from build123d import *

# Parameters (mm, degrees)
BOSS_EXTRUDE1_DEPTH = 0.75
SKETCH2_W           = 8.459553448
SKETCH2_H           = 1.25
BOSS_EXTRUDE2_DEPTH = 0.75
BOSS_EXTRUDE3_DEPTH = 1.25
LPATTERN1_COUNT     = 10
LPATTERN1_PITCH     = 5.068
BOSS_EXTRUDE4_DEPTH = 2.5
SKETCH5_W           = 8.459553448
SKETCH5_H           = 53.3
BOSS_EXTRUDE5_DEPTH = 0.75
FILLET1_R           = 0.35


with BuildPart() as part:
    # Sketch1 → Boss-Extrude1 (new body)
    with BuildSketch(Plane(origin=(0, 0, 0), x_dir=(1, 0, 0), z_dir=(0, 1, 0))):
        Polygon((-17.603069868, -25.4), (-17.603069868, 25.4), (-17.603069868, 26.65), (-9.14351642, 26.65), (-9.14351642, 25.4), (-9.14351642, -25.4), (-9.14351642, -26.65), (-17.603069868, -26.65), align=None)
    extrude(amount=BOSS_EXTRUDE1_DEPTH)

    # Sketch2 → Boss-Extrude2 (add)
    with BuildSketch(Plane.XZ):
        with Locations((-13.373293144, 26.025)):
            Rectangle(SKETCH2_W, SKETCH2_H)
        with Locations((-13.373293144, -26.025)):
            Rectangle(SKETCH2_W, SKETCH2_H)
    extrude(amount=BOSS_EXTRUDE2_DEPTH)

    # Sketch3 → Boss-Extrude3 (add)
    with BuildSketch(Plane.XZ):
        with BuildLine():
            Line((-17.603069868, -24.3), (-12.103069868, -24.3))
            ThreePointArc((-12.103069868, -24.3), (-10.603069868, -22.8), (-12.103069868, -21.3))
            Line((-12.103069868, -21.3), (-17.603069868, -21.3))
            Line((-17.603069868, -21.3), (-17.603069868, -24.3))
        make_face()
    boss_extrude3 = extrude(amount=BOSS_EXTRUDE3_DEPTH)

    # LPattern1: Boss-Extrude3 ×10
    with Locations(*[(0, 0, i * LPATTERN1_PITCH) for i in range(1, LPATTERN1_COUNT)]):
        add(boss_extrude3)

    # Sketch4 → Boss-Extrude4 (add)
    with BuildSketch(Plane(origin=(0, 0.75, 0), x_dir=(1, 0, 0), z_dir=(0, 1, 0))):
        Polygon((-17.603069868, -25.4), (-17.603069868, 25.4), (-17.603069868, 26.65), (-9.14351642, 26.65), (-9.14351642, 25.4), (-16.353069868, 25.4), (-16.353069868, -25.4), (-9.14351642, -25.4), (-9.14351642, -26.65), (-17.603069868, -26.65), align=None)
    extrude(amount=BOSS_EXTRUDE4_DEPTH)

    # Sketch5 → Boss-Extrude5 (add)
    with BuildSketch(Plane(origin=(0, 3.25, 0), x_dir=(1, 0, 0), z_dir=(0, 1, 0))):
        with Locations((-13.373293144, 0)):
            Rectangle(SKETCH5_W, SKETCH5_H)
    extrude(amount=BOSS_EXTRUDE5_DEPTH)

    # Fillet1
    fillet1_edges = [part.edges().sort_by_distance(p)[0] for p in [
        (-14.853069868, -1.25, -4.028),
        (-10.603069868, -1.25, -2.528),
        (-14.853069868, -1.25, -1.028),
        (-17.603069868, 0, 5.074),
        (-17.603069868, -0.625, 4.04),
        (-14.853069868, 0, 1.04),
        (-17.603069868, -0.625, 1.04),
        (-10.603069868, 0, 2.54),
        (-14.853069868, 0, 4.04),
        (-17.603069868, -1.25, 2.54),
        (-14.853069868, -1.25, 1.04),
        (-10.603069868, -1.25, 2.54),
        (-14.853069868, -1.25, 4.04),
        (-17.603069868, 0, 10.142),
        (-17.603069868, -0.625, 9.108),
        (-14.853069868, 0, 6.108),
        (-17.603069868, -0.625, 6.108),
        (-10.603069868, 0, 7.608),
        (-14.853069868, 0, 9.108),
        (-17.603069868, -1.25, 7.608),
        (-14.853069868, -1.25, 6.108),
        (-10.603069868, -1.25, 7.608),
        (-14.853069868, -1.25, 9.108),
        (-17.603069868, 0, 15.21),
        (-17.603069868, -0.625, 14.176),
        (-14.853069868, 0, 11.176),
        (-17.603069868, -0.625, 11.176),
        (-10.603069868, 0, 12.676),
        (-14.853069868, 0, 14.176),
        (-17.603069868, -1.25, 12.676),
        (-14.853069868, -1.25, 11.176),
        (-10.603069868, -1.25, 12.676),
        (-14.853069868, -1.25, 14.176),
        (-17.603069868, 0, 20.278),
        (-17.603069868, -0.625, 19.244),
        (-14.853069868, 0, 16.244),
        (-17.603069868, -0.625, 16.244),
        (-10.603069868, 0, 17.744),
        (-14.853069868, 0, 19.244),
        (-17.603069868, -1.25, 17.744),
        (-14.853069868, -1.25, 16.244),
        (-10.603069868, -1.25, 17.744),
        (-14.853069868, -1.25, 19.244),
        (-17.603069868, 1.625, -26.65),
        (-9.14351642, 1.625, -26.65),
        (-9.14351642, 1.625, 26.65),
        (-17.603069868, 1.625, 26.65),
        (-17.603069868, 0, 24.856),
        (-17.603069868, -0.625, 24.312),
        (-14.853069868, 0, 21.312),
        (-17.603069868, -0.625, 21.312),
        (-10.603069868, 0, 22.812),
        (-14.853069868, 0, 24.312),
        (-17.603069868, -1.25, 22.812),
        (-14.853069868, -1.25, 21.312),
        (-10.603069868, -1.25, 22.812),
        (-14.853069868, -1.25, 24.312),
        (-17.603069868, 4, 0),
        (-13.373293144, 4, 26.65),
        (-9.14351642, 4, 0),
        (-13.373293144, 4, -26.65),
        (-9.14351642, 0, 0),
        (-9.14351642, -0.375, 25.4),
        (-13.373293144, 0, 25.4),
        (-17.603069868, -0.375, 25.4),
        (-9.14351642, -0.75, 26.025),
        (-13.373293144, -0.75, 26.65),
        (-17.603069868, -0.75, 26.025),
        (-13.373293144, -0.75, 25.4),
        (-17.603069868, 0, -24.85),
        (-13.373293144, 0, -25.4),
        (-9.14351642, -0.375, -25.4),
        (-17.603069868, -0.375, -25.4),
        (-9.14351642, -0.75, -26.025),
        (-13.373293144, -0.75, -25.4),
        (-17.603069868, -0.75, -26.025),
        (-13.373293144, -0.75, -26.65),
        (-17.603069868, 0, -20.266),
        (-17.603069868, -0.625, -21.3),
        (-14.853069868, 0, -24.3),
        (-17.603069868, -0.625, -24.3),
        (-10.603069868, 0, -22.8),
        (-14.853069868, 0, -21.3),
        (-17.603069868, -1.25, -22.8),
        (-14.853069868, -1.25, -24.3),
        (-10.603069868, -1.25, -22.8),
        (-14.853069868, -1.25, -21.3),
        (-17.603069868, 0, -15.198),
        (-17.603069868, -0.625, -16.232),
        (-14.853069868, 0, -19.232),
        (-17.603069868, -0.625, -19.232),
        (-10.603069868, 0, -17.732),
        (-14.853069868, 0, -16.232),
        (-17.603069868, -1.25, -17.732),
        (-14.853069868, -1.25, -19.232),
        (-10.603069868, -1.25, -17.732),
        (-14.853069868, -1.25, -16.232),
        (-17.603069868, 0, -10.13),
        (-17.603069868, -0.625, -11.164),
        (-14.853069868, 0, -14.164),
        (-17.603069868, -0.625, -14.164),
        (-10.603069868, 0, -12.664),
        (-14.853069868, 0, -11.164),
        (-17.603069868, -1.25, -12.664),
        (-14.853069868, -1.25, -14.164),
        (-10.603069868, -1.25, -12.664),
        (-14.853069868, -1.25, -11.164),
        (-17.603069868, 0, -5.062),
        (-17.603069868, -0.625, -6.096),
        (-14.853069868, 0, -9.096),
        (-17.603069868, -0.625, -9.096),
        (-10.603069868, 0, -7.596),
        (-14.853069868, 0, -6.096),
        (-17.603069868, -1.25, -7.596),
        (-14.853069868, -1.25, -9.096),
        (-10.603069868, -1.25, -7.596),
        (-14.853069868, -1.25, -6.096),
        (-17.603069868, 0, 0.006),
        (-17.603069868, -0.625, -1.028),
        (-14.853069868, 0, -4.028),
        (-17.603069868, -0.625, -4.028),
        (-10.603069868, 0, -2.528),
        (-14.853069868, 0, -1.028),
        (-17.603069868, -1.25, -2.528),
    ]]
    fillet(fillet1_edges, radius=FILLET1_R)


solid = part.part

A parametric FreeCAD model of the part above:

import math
import FreeCAD as App
import Part
import Sketcher

V = App.Vector


def edges_at(feature, points):
    """Names of the edges that pass closest to the given points."""
    edges = feature.Shape.Edges
    near = lambda p: min(range(len(edges)), key=lambda i: edges[i].distToShape(Part.Vertex(*p))[0])
    return sorted({f"Edge{near(p) + 1}" for p in points})

doc = App.newDocument("Part")
body = doc.addObject("PartDesign::Body", "Body")

# Sketch on XZ plane
sketch1 = body.newObject("Sketcher::SketchObject", "Sketch")
sketch1.AttachmentSupport = (doc.getObject("XZ_Plane"), [""])
sketch1.MapMode = "FlatFace"
sketch1.addGeometry(Part.LineSegment(V(-17.60307, -26.65, 0), V(-17.60307, 26.65, 0)), False)
sketch1.addGeometry(Part.LineSegment(V(-17.60307, 26.65, 0), V(-9.143516, 26.65, 0)), False)
sketch1.addGeometry(Part.LineSegment(V(-9.143516, 26.65, 0), V(-9.143516, -26.65, 0)), False)
sketch1.addGeometry(Part.LineSegment(V(-9.143516, -26.65, 0), V(-17.60307, -26.65, 0)), False)
sketch1.addConstraint(Sketcher.Constraint("Coincident", 0, 2, 1, 1))
sketch1.addConstraint(Sketcher.Constraint("Coincident", 1, 2, 2, 1))
sketch1.addConstraint(Sketcher.Constraint("Coincident", 2, 2, 3, 1))
sketch1.addConstraint(Sketcher.Constraint("Coincident", 3, 2, 0, 1))
sketch1.addConstraint(Sketcher.Constraint("Vertical", 0))
sketch1.addConstraint(Sketcher.Constraint("Horizontal", 1))
sketch1.addConstraint(Sketcher.Constraint("Vertical", 2))
sketch1.addConstraint(Sketcher.Constraint("Horizontal", 3))
sketch1.addConstraint(Sketcher.Constraint("DistanceY", 0, 1, 0, 2, 53.3))
sketch1.addConstraint(Sketcher.Constraint("DistanceY", -1, 1, 0, 2, 26.65))
sketch1.addConstraint(Sketcher.Constraint("DistanceX", 1, 1, 1, 2, 8.459553))
sketch1.addConstraint(Sketcher.Constraint("DistanceX", 0, 2, -1, 1, 17.60307))
pad1 = body.newObject("PartDesign::Pad", "Pad")
pad1.Profile = sketch1
pad1.Length = 0.75
pad1.Reversed = True

# Sketch on XZ plane
sketch2 = body.newObject("Sketcher::SketchObject", "Sketch001")
sketch2.AttachmentSupport = (doc.getObject("XZ_Plane"), [""])
sketch2.MapMode = "FlatFace"
sketch2.addGeometry(Part.LineSegment(V(-17.60307, 26.65, 0), V(-17.60307, 25.4, 0)), False)
sketch2.addGeometry(Part.LineSegment(V(-17.60307, 25.4, 0), V(-9.143516, 25.4, 0)), False)
sketch2.addGeometry(Part.LineSegment(V(-9.143516, 25.4, 0), V(-9.143516, 26.65, 0)), False)
sketch2.addGeometry(Part.LineSegment(V(-9.143516, 26.65, 0), V(-17.60307, 26.65, 0)), False)
sketch2.addGeometry(Part.LineSegment(V(-17.60307, -25.4, 0), V(-17.60307, -26.65, 0)), False)
sketch2.addGeometry(Part.LineSegment(V(-17.60307, -26.65, 0), V(-9.143516, -26.65, 0)), False)
sketch2.addGeometry(Part.LineSegment(V(-9.143516, -26.65, 0), V(-9.143516, -25.4, 0)), False)
sketch2.addGeometry(Part.LineSegment(V(-9.143516, -25.4, 0), V(-17.60307, -25.4, 0)), False)
sketch2.addConstraint(Sketcher.Constraint("Coincident", 0, 2, 1, 1))
sketch2.addConstraint(Sketcher.Constraint("Coincident", 1, 2, 2, 1))
sketch2.addConstraint(Sketcher.Constraint("Coincident", 2, 2, 3, 1))
sketch2.addConstraint(Sketcher.Constraint("Coincident", 3, 2, 0, 1))
sketch2.addConstraint(Sketcher.Constraint("Coincident", 4, 2, 5, 1))
sketch2.addConstraint(Sketcher.Constraint("Coincident", 5, 2, 6, 1))
sketch2.addConstraint(Sketcher.Constraint("Coincident", 6, 2, 7, 1))
sketch2.addConstraint(Sketcher.Constraint("Coincident", 7, 2, 4, 1))
sketch2.addConstraint(Sketcher.Constraint("Vertical", 0))
sketch2.addConstraint(Sketcher.Constraint("Horizontal", 1))
sketch2.addConstraint(Sketcher.Constraint("Vertical", 2))
sketch2.addConstraint(Sketcher.Constraint("Horizontal", 3))
sketch2.addConstraint(Sketcher.Constraint("Vertical", 4))
sketch2.addConstraint(Sketcher.Constraint("Horizontal", 5))
sketch2.addConstraint(Sketcher.Constraint("Vertical", 6))
sketch2.addConstraint(Sketcher.Constraint("Horizontal", 7))
sketch2.addConstraint(Sketcher.Constraint("Symmetric", 3, 2, 4, 2, -1))
sketch2.addConstraint(Sketcher.Constraint("Symmetric", 1, 2, 6, 2, -1))
sketch2.addConstraint(Sketcher.Constraint("DistanceY", 0, 2, 0, 1, 1.25))
sketch2.addConstraint(Sketcher.Constraint("DistanceY", -1, 1, 0, 2, 25.4))
sketch2.addConstraint(Sketcher.Constraint("DistanceX", 1, 1, 1, 2, 8.459553))
sketch2.addConstraint(Sketcher.Constraint("DistanceX", 0, 2, -1, 1, 17.60307))
pad2 = body.newObject("PartDesign::Pad", "Pad001")
pad2.Profile = sketch2
pad2.Length = 0.75

# Sketch on XZ plane
sketch3 = body.newObject("Sketcher::SketchObject", "Sketch002")
sketch3.AttachmentSupport = (doc.getObject("XZ_Plane"), [""])
sketch3.MapMode = "FlatFace"
sketch3.addGeometry(Part.LineSegment(V(-17.60307, -24.3, 0), V(-12.10307, -24.3, 0)), False)
sketch3.addGeometry(Part.ArcOfCircle(Part.Circle(V(-12.10307, -22.8, 0), V(0, 0, 1), 1.5), math.radians(-90), math.radians(90)), False)
sketch3.addGeometry(Part.LineSegment(V(-12.10307, -21.3, 0), V(-17.60307, -21.3, 0)), False)
sketch3.addGeometry(Part.LineSegment(V(-17.60307, -21.3, 0), V(-17.60307, -24.3, 0)), False)
sketch3.addConstraint(Sketcher.Constraint("Tangent", 0, 2, 1, 1))
sketch3.addConstraint(Sketcher.Constraint("Tangent", 1, 2, 2, 1))
sketch3.addConstraint(Sketcher.Constraint("Coincident", 2, 2, 3, 1))
sketch3.addConstraint(Sketcher.Constraint("Coincident", 3, 2, 0, 1))
sketch3.addConstraint(Sketcher.Constraint("Horizontal", 0))
sketch3.addConstraint(Sketcher.Constraint("Horizontal", 2))
sketch3.addConstraint(Sketcher.Constraint("Vertical", 3))
sketch3.addConstraint(Sketcher.Constraint("Radius", 1, 1.5))
sketch3.addConstraint(Sketcher.Constraint("DistanceX", 0, 1, 0, 2, 5.5))
sketch3.addConstraint(Sketcher.Constraint("DistanceY", 1, 3, -1, 1, 22.8))
sketch3.addConstraint(Sketcher.Constraint("DistanceX", 1, 3, -1, 1, 12.10307))
pad3 = body.newObject("PartDesign::Pad", "Pad002")
pad3.Profile = sketch3
pad3.Length = 1.25
doc.recompute()

linearpattern = body.newObject("PartDesign::LinearPattern", "LinearPattern")
linearpattern.Originals = [pad3]
linearpattern.Direction = (doc.getObject("Z_Axis"), [""])
linearpattern.Mode = "offset"
linearpattern.Offset = 5.068
linearpattern.Occurrences = 10
body.Tip = linearpattern

# Sketch on XZ plane
sketch4 = body.newObject("Sketcher::SketchObject", "Sketch003")
sketch4.AttachmentSupport = (doc.getObject("XZ_Plane"), [""])
sketch4.MapMode = "FlatFace"
sketch4.AttachmentOffset = App.Placement(V(0, 0, -0.75), App.Rotation())
sketch4.addGeometry(Part.LineSegment(V(-17.60307, -26.65, 0), V(-17.60307, 26.65, 0)), False)
sketch4.addGeometry(Part.LineSegment(V(-17.60307, 26.65, 0), V(-9.143516, 26.65, 0)), False)
sketch4.addGeometry(Part.LineSegment(V(-9.143516, 26.65, 0), V(-9.143516, 25.4, 0)), False)
sketch4.addGeometry(Part.LineSegment(V(-9.143516, 25.4, 0), V(-16.35307, 25.4, 0)), False)
sketch4.addGeometry(Part.LineSegment(V(-16.35307, 25.4, 0), V(-16.35307, -25.4, 0)), False)
sketch4.addGeometry(Part.LineSegment(V(-16.35307, -25.4, 0), V(-9.143516, -25.4, 0)), False)
sketch4.addGeometry(Part.LineSegment(V(-9.143516, -25.4, 0), V(-9.143516, -26.65, 0)), False)
sketch4.addGeometry(Part.LineSegment(V(-9.143516, -26.65, 0), V(-17.60307, -26.65, 0)), False)
sketch4.addConstraint(Sketcher.Constraint("Coincident", 0, 2, 1, 1))
sketch4.addConstraint(Sketcher.Constraint("Coincident", 1, 2, 2, 1))
sketch4.addConstraint(Sketcher.Constraint("Coincident", 2, 2, 3, 1))
sketch4.addConstraint(Sketcher.Constraint("Coincident", 3, 2, 4, 1))
sketch4.addConstraint(Sketcher.Constraint("Coincident", 4, 2, 5, 1))
sketch4.addConstraint(Sketcher.Constraint("Coincident", 5, 2, 6, 1))
sketch4.addConstraint(Sketcher.Constraint("Coincident", 6, 2, 7, 1))
sketch4.addConstraint(Sketcher.Constraint("Coincident", 7, 2, 0, 1))
sketch4.addConstraint(Sketcher.Constraint("Vertical", 0))
sketch4.addConstraint(Sketcher.Constraint("Horizontal", 1))
sketch4.addConstraint(Sketcher.Constraint("Vertical", 2))
sketch4.addConstraint(Sketcher.Constraint("Horizontal", 3))
sketch4.addConstraint(Sketcher.Constraint("Vertical", 4))
sketch4.addConstraint(Sketcher.Constraint("Horizontal", 5))
sketch4.addConstraint(Sketcher.Constraint("Vertical", 6))
sketch4.addConstraint(Sketcher.Constraint("Horizontal", 7))
sketch4.addConstraint(Sketcher.Constraint("Symmetric", 2, 2, 5, 2, -1))
sketch4.addConstraint(Sketcher.Constraint("Equal", 2, 6))
sketch4.addConstraint(Sketcher.Constraint("DistanceY", 0, 1, 0, 2, 53.3))
sketch4.addConstraint(Sketcher.Constraint("DistanceY", 4, 2, 4, 1, 50.8))
sketch4.addConstraint(Sketcher.Constraint("DistanceX", 0, 2, 3, 2, 1.25))
sketch4.addConstraint(Sketcher.Constraint("DistanceX", 1, 1, 1, 2, 8.459553))
sketch4.addConstraint(Sketcher.Constraint("DistanceX", 0, 2, -1, 1, 17.60307))
pad4 = body.newObject("PartDesign::Pad", "Pad003")
pad4.Profile = sketch4
pad4.Length = 2.5
pad4.Reversed = True

# Sketch on XZ plane
sketch5 = body.newObject("Sketcher::SketchObject", "Sketch004")
sketch5.AttachmentSupport = (doc.getObject("XZ_Plane"), [""])
sketch5.MapMode = "FlatFace"
sketch5.AttachmentOffset = App.Placement(V(0, 0, -3.25), App.Rotation())
sketch5.addGeometry(Part.LineSegment(V(-17.60307, -26.65, 0), V(-17.60307, 26.65, 0)), False)
sketch5.addGeometry(Part.LineSegment(V(-17.60307, 26.65, 0), V(-9.143516, 26.65, 0)), False)
sketch5.addGeometry(Part.LineSegment(V(-9.143516, 26.65, 0), V(-9.143516, -26.65, 0)), False)
sketch5.addGeometry(Part.LineSegment(V(-9.143516, -26.65, 0), V(-17.60307, -26.65, 0)), False)
sketch5.addConstraint(Sketcher.Constraint("Coincident", 0, 2, 1, 1))
sketch5.addConstraint(Sketcher.Constraint("Coincident", 1, 2, 2, 1))
sketch5.addConstraint(Sketcher.Constraint("Coincident", 2, 2, 3, 1))
sketch5.addConstraint(Sketcher.Constraint("Coincident", 3, 2, 0, 1))
sketch5.addConstraint(Sketcher.Constraint("Vertical", 0))
sketch5.addConstraint(Sketcher.Constraint("Horizontal", 1))
sketch5.addConstraint(Sketcher.Constraint("Vertical", 2))
sketch5.addConstraint(Sketcher.Constraint("Horizontal", 3))
sketch5.addConstraint(Sketcher.Constraint("DistanceY", 0, 1, 0, 2, 53.3))
sketch5.addConstraint(Sketcher.Constraint("DistanceY", -1, 1, 0, 2, 26.65))
sketch5.addConstraint(Sketcher.Constraint("DistanceX", 1, 1, 1, 2, 8.459553))
sketch5.addConstraint(Sketcher.Constraint("DistanceX", 0, 2, -1, 1, 17.60307))
pad5 = body.newObject("PartDesign::Pad", "Pad004")
pad5.Profile = sketch5
pad5.Length = 0.75
pad5.Reversed = True
doc.recompute()

fillet = body.newObject("PartDesign::Fillet", "Fillet")
fillet.Base = (pad5, edges_at(pad5, [
    (-14.853, -1.25, -4.028),
    (-10.603, -1.25, -2.528),
    (-14.853, -1.25, -1.028),
    (-17.603, 0, 5.074),
    (-17.603, -0.625, 4.04),
    (-14.853, 0, 1.04),
    (-17.603, -0.625, 1.04),
    (-10.603, 0, 2.54),
    (-14.853, 0, 4.04),
    (-17.603, -1.25, 2.54),
    (-14.853, -1.25, 1.04),
    (-10.603, -1.25, 2.54),
    (-14.853, -1.25, 4.04),
    (-17.603, 0, 10.142),
    (-17.603, -0.625, 9.108),
    (-14.853, 0, 6.108),
    (-17.603, -0.625, 6.108),
    (-10.603, 0, 7.608),
    (-14.853, 0, 9.108),
    (-17.603, -1.25, 7.608),
    (-14.853, -1.25, 6.108),
    (-10.603, -1.25, 7.608),
    (-14.853, -1.25, 9.108),
    (-17.603, 0, 15.21),
    (-17.603, -0.625, 14.176),
    (-14.853, 0, 11.176),
    (-17.603, -0.625, 11.176),
    (-10.603, 0, 12.676),
    (-14.853, 0, 14.176),
    (-17.603, -1.25, 12.676),
    (-14.853, -1.25, 11.176),
    (-10.603, -1.25, 12.676),
    (-14.853, -1.25, 14.176),
    (-17.603, 0, 20.278),
    (-17.603, -0.625, 19.244),
    (-14.853, 0, 16.244),
    (-17.603, -0.625, 16.244),
    (-10.603, 0, 17.744),
    (-14.853, 0, 19.244),
    (-17.603, -1.25, 17.744),
    (-14.853, -1.25, 16.244),
    (-10.603, -1.25, 17.744),
    (-14.853, -1.25, 19.244),
    (-17.603, 1.625, -26.65),
    (-9.144, 1.625, -26.65),
    (-9.144, 1.625, 26.65),
    (-17.603, 1.625, 26.65),
    (-17.603, 0, 24.856),
    (-17.603, -0.625, 24.312),
    (-14.853, 0, 21.312),
    (-17.603, -0.625, 21.312),
    (-10.603, 0, 22.812),
    (-14.853, 0, 24.312),
    (-17.603, -1.25, 22.812),
    (-14.853, -1.25, 21.312),
    (-10.603, -1.25, 22.812),
    (-14.853, -1.25, 24.312),
    (-17.603, 4, 0),
    (-13.373, 4, 26.65),
    (-9.144, 4, 0),
    (-13.373, 4, -26.65),
    (-9.144, 0, 0),
    (-9.144, -0.375, 25.4),
    (-13.373, 0, 25.4),
    (-17.603, -0.375, 25.4),
    (-9.144, -0.75, 26.025),
    (-13.373, -0.75, 26.65),
    (-17.603, -0.75, 26.025),
    (-13.373, -0.75, 25.4),
    (-17.603, 0, -24.85),
    (-13.373, 0, -25.4),
    (-9.144, -0.375, -25.4),
    (-17.603, -0.375, -25.4),
    (-9.144, -0.75, -26.025),
    (-13.373, -0.75, -25.4),
    (-17.603, -0.75, -26.025),
    (-13.373, -0.75, -26.65),
    (-17.603, 0, -20.266),
    (-17.603, -0.625, -21.3),
    (-14.853, 0, -24.3),
    (-17.603, -0.625, -24.3),
    (-10.603, 0, -22.8),
    (-14.853, 0, -21.3),
    (-17.603, -1.25, -22.8),
    (-14.853, -1.25, -24.3),
    (-10.603, -1.25, -22.8),
    (-14.853, -1.25, -21.3),
    (-17.603, 0, -15.198),
    (-17.603, -0.625, -16.232),
    (-14.853, 0, -19.232),
    (-17.603, -0.625, -19.232),
    (-10.603, 0, -17.732),
    (-14.853, 0, -16.232),
    (-17.603, -1.25, -17.732),
    (-14.853, -1.25, -19.232),
    (-10.603, -1.25, -17.732),
    (-14.853, -1.25, -16.232),
    (-17.603, 0, -10.13),
    (-17.603, -0.625, -11.164),
    (-14.853, 0, -14.164),
    (-17.603, -0.625, -14.164),
    (-10.603, 0, -12.664),
    (-14.853, 0, -11.164),
    (-17.603, -1.25, -12.664),
    (-14.853, -1.25, -14.164),
    (-10.603, -1.25, -12.664),
    (-14.853, -1.25, -11.164),
    (-17.603, 0, -5.062),
    (-17.603, -0.625, -6.096),
    (-14.853, 0, -9.096),
    (-17.603, -0.625, -9.096),
    (-10.603, 0, -7.596),
    (-14.853, 0, -6.096),
    (-17.603, -1.25, -7.596),
    (-14.853, -1.25, -9.096),
    (-10.603, -1.25, -7.596),
    (-14.853, -1.25, -6.096),
    (-17.603, 0, 0.006),
    (-17.603, -0.625, -1.028),
    (-14.853, 0, -4.028),
    (-17.603, -0.625, -4.028),
    (-10.603, 0, -2.528),
    (-14.853, 0, -1.028),
    (-17.603, -1.25, -2.528),
]))
fillet.Radius = 0.35

doc.recompute()
